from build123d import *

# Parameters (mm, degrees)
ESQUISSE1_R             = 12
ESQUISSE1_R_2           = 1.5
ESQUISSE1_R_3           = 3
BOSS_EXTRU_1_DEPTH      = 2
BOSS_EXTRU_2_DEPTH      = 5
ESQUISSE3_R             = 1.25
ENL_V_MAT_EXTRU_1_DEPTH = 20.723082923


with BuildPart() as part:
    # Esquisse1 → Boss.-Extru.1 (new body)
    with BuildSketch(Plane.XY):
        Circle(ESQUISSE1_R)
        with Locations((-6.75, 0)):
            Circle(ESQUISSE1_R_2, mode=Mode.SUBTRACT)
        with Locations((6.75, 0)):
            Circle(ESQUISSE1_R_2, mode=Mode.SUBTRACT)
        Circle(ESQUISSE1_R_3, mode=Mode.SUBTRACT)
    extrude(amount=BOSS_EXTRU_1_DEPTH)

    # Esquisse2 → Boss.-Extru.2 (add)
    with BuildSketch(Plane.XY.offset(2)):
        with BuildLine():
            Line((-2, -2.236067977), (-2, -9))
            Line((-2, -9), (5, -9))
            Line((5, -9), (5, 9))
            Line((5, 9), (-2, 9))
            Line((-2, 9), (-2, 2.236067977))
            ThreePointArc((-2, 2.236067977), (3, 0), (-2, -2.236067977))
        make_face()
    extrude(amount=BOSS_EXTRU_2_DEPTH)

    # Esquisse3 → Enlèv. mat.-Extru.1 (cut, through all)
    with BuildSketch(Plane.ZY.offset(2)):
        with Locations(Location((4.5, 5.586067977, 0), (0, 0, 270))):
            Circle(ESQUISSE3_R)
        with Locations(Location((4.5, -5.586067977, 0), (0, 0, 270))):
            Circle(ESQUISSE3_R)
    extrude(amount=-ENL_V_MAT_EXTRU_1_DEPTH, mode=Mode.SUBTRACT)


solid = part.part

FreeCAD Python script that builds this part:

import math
import FreeCAD as App
import Part
import Sketcher

doc = App.newDocument("Part")
body = doc.addObject("PartDesign::Body", "Body")

sketch1 = body.newObject("Sketcher::SketchObject", "Sketch")
sketch1.AttachmentSupport = (doc.getObject("XY_Plane"), [""])
sketch1.MapMode = "FlatFace"
sketch1.addGeometry([
    Part.Circle(App.Vector(0, 0, 0), App.Vector(0, 0, 1), 12),
    Part.Circle(App.Vector(-6.75, 0, 0), App.Vector(0, 0, 1), 1.5),
    Part.Circle(App.Vector(0, 0, 0), App.Vector(0, 0, 1), 3),
    Part.Circle(App.Vector(6.75, 0, 0), App.Vector(0, 0, 1), 1.5),
], False)
sketch1.addConstraint([
    Sketcher.Constraint("Coincident", 0, 3, -1, 1),
    Sketcher.Constraint("Coincident", 2, 3, -1, 1),
    Sketcher.Constraint("Equal", 1, 3),
    Sketcher.Constraint("Symmetric", 1, 3, 3, 3, -1, 1),
    Sketcher.Constraint("PointOnObject", 1, 3, -1),
    Sketcher.Constraint("Diameter", 0, 24.0),
    Sketcher.Constraint("Diameter", 1, 3.0),
    Sketcher.Constraint("Diameter", 2, 6.0),
    Sketcher.Constraint("DistanceX", 1, 3, 3, 3, 13.5),
])
pad1 = body.newObject("PartDesign::Pad", "Pad")
pad1.Profile = sketch1
pad1.Length = 2

sketch2 = body.newObject("Sketcher::SketchObject", "Sketch001")
sketch2.AttachmentSupport = (doc.getObject("XY_Plane"), [""])
sketch2.MapMode = "FlatFace"
sketch2.AttachmentOffset = App.Placement(App.Vector(0, 0, 2), App.Rotation())
sketch2.addGeometry([
    Part.LineSegment(App.Vector(-2, -2.236068, 0), App.Vector(-2, -9, 0)),
    Part.LineSegment(App.Vector(-2, -9, 0), App.Vector(5, -9, 0)),
    Part.LineSegment(App.Vector(5, -9, 0), App.Vector(5, 9, 0)),
    Part.LineSegment(App.Vector(5, 9, 0), App.Vector(-2, 9, 0)),
    Part.LineSegment(App.Vector(-2, 9, 0), App.Vector(-2, 2.236068, 0)),
    Part.ArcOfCircle(Part.Circle(App.Vector(0, 0, 0), App.Vector(0, 0, 1), 3), math.radians(-131.810315), math.radians(131.810315)),
], False)
sketch2.addConstraint([
    Sketcher.Constraint("Coincident", 0, 2, 1, 1),
    Sketcher.Constraint("Coincident", 1, 2, 2, 1),
    Sketcher.Constraint("Coincident", 2, 2, 3, 1),
    Sketcher.Constraint("Coincident", 3, 2, 4, 1),
    Sketcher.Constraint("Coincident", 4, 2, 5, 2),
    Sketcher.Constraint("Coincident", 5, 1, 0, 1),
    Sketcher.Constraint("Vertical", 0),
    Sketcher.Constraint("Horizontal", 1),
    Sketcher.Constraint("Vertical", 2),
    Sketcher.Constraint("Horizontal", 3),
    Sketcher.Constraint("Vertical", 4),
    Sketcher.Constraint("Coincident", 5, 3, -1, 1),
    Sketcher.Constraint("Symmetric", 0, 2, 3, 2, -1),
    Sketcher.Constraint("Radius", 5, 3.0),
    Sketcher.Constraint("DistanceX", 1, 1, 1, 2, 7.0),
    Sketcher.Constraint("DistanceY", 2, 1, 2, 2, 18.0),
    Sketcher.Constraint("DistanceX", 0, 2, -1, 1, 2.0),
])
pad2 = body.newObject("PartDesign::Pad", "Pad001")
pad2.Profile = sketch2
pad2.Length = 5

sketch3 = body.newObject("Sketcher::SketchObject", "Sketch002")
sketch3.AttachmentSupport = (doc.getObject("YZ_Plane"), [""])
sketch3.MapMode = "FlatFace"
sketch3.AttachmentOffset = App.Placement(App.Vector(0, 0, -2), App.Rotation())
sketch3.addGeometry([
    Part.Circle(App.Vector(5.586068, 4.5, 0), App.Vector(0, 0, 1), 1.25),
    Part.Circle(App.Vector(-5.586068, 4.5, 0), App.Vector(0, 0, 1), 1.25),
], False)
sketch3.addConstraint([
    Sketcher.Constraint("Equal", 0, 1),
    Sketcher.Constraint("Symmetric", 0, 3, 1, 3, -2),
    Sketcher.Constraint("Diameter", 0, 2.5),
    Sketcher.Constraint("DistanceY", -1, 1, 0, 3, 4.5),
    Sketcher.Constraint("DistanceX", -1, 1, 0, 3, 5.586068),
])
pocket1 = body.newObject("PartDesign::Pocket", "Pocket")
pocket1.Profile = sketch3
pocket1.Type = "ThroughAll"
pocket1.Reversed = True

doc.recompute()
